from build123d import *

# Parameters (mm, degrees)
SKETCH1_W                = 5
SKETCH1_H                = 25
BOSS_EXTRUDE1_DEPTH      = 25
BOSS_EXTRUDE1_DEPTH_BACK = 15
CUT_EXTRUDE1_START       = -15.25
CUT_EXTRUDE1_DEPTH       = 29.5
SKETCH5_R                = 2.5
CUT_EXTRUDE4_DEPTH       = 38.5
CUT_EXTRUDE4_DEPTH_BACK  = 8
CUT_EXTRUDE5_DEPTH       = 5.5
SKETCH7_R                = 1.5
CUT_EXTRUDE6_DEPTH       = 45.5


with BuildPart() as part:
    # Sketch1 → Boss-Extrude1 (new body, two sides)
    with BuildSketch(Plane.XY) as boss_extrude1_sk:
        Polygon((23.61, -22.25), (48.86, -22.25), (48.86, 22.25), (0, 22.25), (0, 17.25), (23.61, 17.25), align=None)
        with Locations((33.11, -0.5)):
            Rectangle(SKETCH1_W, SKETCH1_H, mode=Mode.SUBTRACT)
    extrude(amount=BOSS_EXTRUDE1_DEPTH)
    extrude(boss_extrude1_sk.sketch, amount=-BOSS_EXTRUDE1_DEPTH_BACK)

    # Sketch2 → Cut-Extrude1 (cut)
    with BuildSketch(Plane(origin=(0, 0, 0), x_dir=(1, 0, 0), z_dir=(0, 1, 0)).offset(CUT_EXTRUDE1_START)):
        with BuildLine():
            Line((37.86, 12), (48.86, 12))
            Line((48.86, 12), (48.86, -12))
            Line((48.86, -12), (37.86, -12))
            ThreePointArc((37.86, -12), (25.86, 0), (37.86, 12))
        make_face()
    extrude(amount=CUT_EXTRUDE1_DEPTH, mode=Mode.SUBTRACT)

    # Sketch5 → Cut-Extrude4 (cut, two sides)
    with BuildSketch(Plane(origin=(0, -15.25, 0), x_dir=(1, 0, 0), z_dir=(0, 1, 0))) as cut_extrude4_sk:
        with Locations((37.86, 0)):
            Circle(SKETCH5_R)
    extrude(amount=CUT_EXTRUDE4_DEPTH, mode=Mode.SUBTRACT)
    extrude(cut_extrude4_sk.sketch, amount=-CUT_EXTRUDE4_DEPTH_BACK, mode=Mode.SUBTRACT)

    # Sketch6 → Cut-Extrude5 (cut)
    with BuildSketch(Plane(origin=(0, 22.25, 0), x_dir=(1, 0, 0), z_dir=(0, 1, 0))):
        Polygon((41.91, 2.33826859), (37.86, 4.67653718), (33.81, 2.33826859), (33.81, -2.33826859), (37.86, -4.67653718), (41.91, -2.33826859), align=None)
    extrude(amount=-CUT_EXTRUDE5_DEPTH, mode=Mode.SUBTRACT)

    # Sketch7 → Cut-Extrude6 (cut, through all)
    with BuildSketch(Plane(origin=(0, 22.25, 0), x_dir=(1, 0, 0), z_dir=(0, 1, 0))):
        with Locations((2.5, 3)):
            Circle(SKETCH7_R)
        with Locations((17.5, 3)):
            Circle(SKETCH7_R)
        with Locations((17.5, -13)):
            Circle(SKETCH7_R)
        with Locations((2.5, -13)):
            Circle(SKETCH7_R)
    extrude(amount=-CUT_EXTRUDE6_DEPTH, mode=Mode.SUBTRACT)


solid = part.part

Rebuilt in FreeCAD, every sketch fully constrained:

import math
import FreeCAD as App
import Part
import Sketcher
Q = App.Units.Quantity


def add_polygon(sketch, points):
    """Adds a closed chain of lines whose ends are joined by coincident constraints."""
    first, n = sketch.GeometryCount, len(points)
    for a, b in zip(points, points[1:] + points[:1]):
        sketch.addGeometry(Part.LineSegment(App.Vector(*a, 0), App.Vector(*b, 0)), False)
    for i in range(n):
        sketch.addConstraint(Sketcher.Constraint("Coincident", first + i, 2, first + (i + 1) % n, 1))

doc = App.newDocument("Part")
body = doc.addObject("PartDesign::Body", "Body")

sketch1 = body.newObject("Sketcher::SketchObject", "Sketch")
sketch1.AttachmentSupport = (doc.getObject("XY_Plane"), [""])
sketch1.MapMode = "FlatFace"
add_polygon(sketch1, [(24, -22), (49, -22), (49, 22), (0, 22), (0, 17), (24, 17)])
add_polygon(sketch1, [(36, -13), (31, -13), (31, 12), (36, 12)])
sketch1.addConstraint(Sketcher.Constraint("Horizontal", 0))
sketch1.addConstraint(Sketcher.Constraint("Vertical", 1))
sketch1.addConstraint(Sketcher.Constraint("Horizontal", 2))
sketch1.addConstraint(Sketcher.Constraint("Vertical", 3))
sketch1.addConstraint(Sketcher.Constraint("Horizontal", 4))
sketch1.addConstraint(Sketcher.Constraint("Vertical", 5))
sketch1.addConstraint(Sketcher.Constraint("Horizontal", 6))
sketch1.addConstraint(Sketcher.Constraint("Vertical", 7))
sketch1.addConstraint(Sketcher.Constraint("Horizontal", 8))
sketch1.addConstraint(Sketcher.Constraint("Vertical", 9))
sketch1.addConstraint(Sketcher.Constraint("PointOnObject", 2, 2, -2))
sketch1.addConstraint(Sketcher.Constraint("Equal", 8, 3))
sketch1.addConstraint(Sketcher.Constraint("DistanceX", 6, 2, 6, 1, Q("5 mm")))
sketch1.addConstraint(Sketcher.Constraint("DistanceY", 7, 1, 7, 2, Q("25 mm")))
sketch1.addConstraint(Sketcher.Constraint("DistanceY", 1, 1, 1, 2, Q("44.5 mm")))
sketch1.addConstraint(Sketcher.Constraint("DistanceY", 6, 2, -1, 1, Q("13 mm")))
sketch1.addConstraint(Sketcher.Constraint("DistanceX", 5, 2, 6, 2, Q("7 mm")))
sketch1.addConstraint(Sketcher.Constraint("DistanceX", 0, 1, 0, 2, Q("25.25 mm")))
sketch1.addConstraint(Sketcher.Constraint("DistanceX", 2, 2, 2, 1, Q("48.86 mm")))
sketch1.addConstraint(Sketcher.Constraint("DistanceY", 0, 2, -1, 1, Q("22.25 mm")))
pad1 = body.newObject("PartDesign::Pad", "Pad")
pad1.Profile = sketch1
pad1.Type = "TwoLengths"
pad1.Length = 25
pad1.Length2 = 15

sketch2 = body.newObject("Sketcher::SketchObject", "Sketch001")
sketch2.AttachmentSupport = (doc.getObject("XZ_Plane"), [""])
sketch2.MapMode = "FlatFace"
sketch2.AttachmentOffset = App.Placement(App.Vector(0, 0, 15.25), App.Rotation())
sketch2.addGeometry(Part.LineSegment(App.Vector(49, -12, 0), App.Vector(38, -12, 0)), False)
sketch2.addGeometry(Part.ArcOfCircle(Part.Circle(App.Vector(38, 0, 0), App.Vector(0, 0, 1), 12), math.radians(90), math.radians(270)), False)
sketch2.addGeometry(Part.LineSegment(App.Vector(38, 12, 0), App.Vector(49, 12, 0)), False)
sketch2.addGeometry(Part.LineSegment(App.Vector(49, 12, 0), App.Vector(49, -12, 0)), False)
sketch2.addConstraint(Sketcher.Constraint("Tangent", 0, 2, 1, 2))
sketch2.addConstraint(Sketcher.Constraint("Tangent", 1, 1, 2, 1))
sketch2.addConstraint(Sketcher.Constraint("Coincident", 2, 2, 3, 1))
sketch2.addConstraint(Sketcher.Constraint("Coincident", 3, 2, 0, 1))
sketch2.addConstraint(Sketcher.Constraint("Horizontal", 0))
sketch2.addConstraint(Sketcher.Constraint("Horizontal", 2))
sketch2.addConstraint(Sketcher.Constraint("Vertical", 3))
sketch2.addConstraint(Sketcher.Constraint("PointOnObject", 1, 3, -1))
sketch2.addConstraint(Sketcher.Constraint("Radius", 1, Q("12 mm")))
sketch2.addConstraint(Sketcher.Constraint("DistanceX", 0, 2, 0, 1, Q("11 mm")))
sketch2.addConstraint(Sketcher.Constraint("DistanceX", -1, 1, 1, 3, Q("37.86 mm")))
pocket1 = body.newObject("PartDesign::Pocket", "Pocket")
pocket1.Profile = sketch2
pocket1.Length = 29.5

sketch3 = body.newObject("Sketcher::SketchObject", "Sketch002")
sketch3.AttachmentSupport = (doc.getObject("XZ_Plane"), [""])
sketch3.MapMode = "FlatFace"
sketch3.AttachmentOffset = App.Placement(App.Vector(0, 0, 15.25), App.Rotation())
sketch3.addGeometry(Part.Circle(App.Vector(37.9, 0, 0), App.Vector(0, 0, 1), 2.5), False)
sketch3.addConstraint(Sketcher.Constraint("PointOnObject", 0, 3, -1))
sketch3.addConstraint(Sketcher.Constraint("Diameter", 0, Q("5 mm")))
sketch3.addConstraint(Sketcher.Constraint("DistanceX", -1, 1, 0, 3, Q("37.86 mm")))
pocket2 = body.newObject("PartDesign::Pocket", "Pocket001")
pocket2.Profile = sketch3
pocket2.Type = "ThroughAll"
pocket2.Midplane = True

sketch4 = body.newObject("Sketcher::SketchObject", "Sketch003")
sketch4.AttachmentSupport = (doc.getObject("XZ_Plane"), [""])
sketch4.MapMode = "FlatFace"
sketch4.AttachmentOffset = App.Placement(App.Vector(0, 0, -22.25), App.Rotation())
add_polygon(sketch4, [(41.9, -2.3), (37.9, -4.7), (33.8, -2.3), (33.8, 2.3), (37.9, 4.7), (41.9, 2.3)])
sketch4.addConstraint(Sketcher.Constraint("Vertical", 2))
sketch4.addConstraint(Sketcher.Constraint("Vertical", 5))
sketch4.addConstraint(Sketcher.Constraint("Symmetric", 0, 2, 3, 2, -1))
sketch4.addConstraint(Sketcher.Constraint("Parallel", 0, 3))
sketch4.addConstraint(Sketcher.Constraint("Parallel", 1, 4))
sketch4.addConstraint(Sketcher.Constraint("Horizontal", 2, 2, 4, 2))
sketch4.addConstraint(Sketcher.Constraint("Horizontal", 1, 2, 5, 2))
sketch4.addConstraint(Sketcher.Constraint("Angle", 0, Q("-150 deg")))
sketch4.addConstraint(Sketcher.Constraint("DistanceX", 2, 2, 4, 2, Q("8.1 mm")))
sketch4.addConstraint(Sketcher.Constraint("DistanceX", -1, 1, 0, 2, Q("37.86 mm")))
sketch4.addConstraint(Sketcher.Constraint("DistanceY", 2, 1, 2, 2, Q("4.676537 mm")))
pocket3 = body.newObject("PartDesign::Pocket", "Pocket002")
pocket3.Profile = sketch4
pocket3.Length = 5.5
pocket3.Reversed = True

sketch5 = body.newObject("Sketcher::SketchObject", "Sketch004")
sketch5.AttachmentSupport = (doc.getObject("XZ_Plane"), [""])
sketch5.MapMode = "FlatFace"
sketch5.AttachmentOffset = App.Placement(App.Vector(0, 0, -22.25), App.Rotation())
sketch5.addGeometry(Part.Circle(App.Vector(2.5, -3, 0), App.Vector(0, 0, 1), 1.5), False)
sketch5.addGeometry(Part.Circle(App.Vector(17.5, -3, 0), App.Vector(0, 0, 1), 1.5), False)
sketch5.addGeometry(Part.Circle(App.Vector(17.5, 13, 0), App.Vector(0, 0, 1), 1.5), False)
sketch5.addGeometry(Part.Circle(App.Vector(2.5, 13, 0), App.Vector(0, 0, 1), 1.5), False)
sketch5.addConstraint(Sketcher.Constraint("Equal", 0, 1))
sketch5.addConstraint(Sketcher.Constraint("Equal", 1, 2))
sketch5.addConstraint(Sketcher.Constraint("Equal", 2, 3))
sketch5.addConstraint(Sketcher.Constraint("Horizontal", 0, 3, 1, 3))
sketch5.addConstraint(Sketcher.Constraint("Horizontal", 2, 3, 3, 3))
sketch5.addConstraint(Sketcher.Constraint("Vertical", 1, 3, 2, 3))
sketch5.addConstraint(Sketcher.Constraint("Vertical", 0, 3, 3, 3))
sketch5.addConstraint(Sketcher.Constraint("Diameter", 0, Q("3 mm")))
sketch5.addConstraint(Sketcher.Constraint("DistanceY", 0, 3, -1, 1, Q("3 mm")))
sketch5.addConstraint(Sketcher.Constraint("DistanceY", -1, 1, 2, 3, Q("13 mm")))
sketch5.addConstraint(Sketcher.Constraint("DistanceX", 0, 3, 1, 3, Q("15 mm")))
sketch5.addConstraint(Sketcher.Constraint("DistanceX", -1, 1, 0, 3, Q("2.5 mm")))
pocket4 = body.newObject("PartDesign::Pocket", "Pocket003")
pocket4.Profile = sketch5
pocket4.Type = "ThroughAll"
pocket4.Reversed = True

doc.recompute()
